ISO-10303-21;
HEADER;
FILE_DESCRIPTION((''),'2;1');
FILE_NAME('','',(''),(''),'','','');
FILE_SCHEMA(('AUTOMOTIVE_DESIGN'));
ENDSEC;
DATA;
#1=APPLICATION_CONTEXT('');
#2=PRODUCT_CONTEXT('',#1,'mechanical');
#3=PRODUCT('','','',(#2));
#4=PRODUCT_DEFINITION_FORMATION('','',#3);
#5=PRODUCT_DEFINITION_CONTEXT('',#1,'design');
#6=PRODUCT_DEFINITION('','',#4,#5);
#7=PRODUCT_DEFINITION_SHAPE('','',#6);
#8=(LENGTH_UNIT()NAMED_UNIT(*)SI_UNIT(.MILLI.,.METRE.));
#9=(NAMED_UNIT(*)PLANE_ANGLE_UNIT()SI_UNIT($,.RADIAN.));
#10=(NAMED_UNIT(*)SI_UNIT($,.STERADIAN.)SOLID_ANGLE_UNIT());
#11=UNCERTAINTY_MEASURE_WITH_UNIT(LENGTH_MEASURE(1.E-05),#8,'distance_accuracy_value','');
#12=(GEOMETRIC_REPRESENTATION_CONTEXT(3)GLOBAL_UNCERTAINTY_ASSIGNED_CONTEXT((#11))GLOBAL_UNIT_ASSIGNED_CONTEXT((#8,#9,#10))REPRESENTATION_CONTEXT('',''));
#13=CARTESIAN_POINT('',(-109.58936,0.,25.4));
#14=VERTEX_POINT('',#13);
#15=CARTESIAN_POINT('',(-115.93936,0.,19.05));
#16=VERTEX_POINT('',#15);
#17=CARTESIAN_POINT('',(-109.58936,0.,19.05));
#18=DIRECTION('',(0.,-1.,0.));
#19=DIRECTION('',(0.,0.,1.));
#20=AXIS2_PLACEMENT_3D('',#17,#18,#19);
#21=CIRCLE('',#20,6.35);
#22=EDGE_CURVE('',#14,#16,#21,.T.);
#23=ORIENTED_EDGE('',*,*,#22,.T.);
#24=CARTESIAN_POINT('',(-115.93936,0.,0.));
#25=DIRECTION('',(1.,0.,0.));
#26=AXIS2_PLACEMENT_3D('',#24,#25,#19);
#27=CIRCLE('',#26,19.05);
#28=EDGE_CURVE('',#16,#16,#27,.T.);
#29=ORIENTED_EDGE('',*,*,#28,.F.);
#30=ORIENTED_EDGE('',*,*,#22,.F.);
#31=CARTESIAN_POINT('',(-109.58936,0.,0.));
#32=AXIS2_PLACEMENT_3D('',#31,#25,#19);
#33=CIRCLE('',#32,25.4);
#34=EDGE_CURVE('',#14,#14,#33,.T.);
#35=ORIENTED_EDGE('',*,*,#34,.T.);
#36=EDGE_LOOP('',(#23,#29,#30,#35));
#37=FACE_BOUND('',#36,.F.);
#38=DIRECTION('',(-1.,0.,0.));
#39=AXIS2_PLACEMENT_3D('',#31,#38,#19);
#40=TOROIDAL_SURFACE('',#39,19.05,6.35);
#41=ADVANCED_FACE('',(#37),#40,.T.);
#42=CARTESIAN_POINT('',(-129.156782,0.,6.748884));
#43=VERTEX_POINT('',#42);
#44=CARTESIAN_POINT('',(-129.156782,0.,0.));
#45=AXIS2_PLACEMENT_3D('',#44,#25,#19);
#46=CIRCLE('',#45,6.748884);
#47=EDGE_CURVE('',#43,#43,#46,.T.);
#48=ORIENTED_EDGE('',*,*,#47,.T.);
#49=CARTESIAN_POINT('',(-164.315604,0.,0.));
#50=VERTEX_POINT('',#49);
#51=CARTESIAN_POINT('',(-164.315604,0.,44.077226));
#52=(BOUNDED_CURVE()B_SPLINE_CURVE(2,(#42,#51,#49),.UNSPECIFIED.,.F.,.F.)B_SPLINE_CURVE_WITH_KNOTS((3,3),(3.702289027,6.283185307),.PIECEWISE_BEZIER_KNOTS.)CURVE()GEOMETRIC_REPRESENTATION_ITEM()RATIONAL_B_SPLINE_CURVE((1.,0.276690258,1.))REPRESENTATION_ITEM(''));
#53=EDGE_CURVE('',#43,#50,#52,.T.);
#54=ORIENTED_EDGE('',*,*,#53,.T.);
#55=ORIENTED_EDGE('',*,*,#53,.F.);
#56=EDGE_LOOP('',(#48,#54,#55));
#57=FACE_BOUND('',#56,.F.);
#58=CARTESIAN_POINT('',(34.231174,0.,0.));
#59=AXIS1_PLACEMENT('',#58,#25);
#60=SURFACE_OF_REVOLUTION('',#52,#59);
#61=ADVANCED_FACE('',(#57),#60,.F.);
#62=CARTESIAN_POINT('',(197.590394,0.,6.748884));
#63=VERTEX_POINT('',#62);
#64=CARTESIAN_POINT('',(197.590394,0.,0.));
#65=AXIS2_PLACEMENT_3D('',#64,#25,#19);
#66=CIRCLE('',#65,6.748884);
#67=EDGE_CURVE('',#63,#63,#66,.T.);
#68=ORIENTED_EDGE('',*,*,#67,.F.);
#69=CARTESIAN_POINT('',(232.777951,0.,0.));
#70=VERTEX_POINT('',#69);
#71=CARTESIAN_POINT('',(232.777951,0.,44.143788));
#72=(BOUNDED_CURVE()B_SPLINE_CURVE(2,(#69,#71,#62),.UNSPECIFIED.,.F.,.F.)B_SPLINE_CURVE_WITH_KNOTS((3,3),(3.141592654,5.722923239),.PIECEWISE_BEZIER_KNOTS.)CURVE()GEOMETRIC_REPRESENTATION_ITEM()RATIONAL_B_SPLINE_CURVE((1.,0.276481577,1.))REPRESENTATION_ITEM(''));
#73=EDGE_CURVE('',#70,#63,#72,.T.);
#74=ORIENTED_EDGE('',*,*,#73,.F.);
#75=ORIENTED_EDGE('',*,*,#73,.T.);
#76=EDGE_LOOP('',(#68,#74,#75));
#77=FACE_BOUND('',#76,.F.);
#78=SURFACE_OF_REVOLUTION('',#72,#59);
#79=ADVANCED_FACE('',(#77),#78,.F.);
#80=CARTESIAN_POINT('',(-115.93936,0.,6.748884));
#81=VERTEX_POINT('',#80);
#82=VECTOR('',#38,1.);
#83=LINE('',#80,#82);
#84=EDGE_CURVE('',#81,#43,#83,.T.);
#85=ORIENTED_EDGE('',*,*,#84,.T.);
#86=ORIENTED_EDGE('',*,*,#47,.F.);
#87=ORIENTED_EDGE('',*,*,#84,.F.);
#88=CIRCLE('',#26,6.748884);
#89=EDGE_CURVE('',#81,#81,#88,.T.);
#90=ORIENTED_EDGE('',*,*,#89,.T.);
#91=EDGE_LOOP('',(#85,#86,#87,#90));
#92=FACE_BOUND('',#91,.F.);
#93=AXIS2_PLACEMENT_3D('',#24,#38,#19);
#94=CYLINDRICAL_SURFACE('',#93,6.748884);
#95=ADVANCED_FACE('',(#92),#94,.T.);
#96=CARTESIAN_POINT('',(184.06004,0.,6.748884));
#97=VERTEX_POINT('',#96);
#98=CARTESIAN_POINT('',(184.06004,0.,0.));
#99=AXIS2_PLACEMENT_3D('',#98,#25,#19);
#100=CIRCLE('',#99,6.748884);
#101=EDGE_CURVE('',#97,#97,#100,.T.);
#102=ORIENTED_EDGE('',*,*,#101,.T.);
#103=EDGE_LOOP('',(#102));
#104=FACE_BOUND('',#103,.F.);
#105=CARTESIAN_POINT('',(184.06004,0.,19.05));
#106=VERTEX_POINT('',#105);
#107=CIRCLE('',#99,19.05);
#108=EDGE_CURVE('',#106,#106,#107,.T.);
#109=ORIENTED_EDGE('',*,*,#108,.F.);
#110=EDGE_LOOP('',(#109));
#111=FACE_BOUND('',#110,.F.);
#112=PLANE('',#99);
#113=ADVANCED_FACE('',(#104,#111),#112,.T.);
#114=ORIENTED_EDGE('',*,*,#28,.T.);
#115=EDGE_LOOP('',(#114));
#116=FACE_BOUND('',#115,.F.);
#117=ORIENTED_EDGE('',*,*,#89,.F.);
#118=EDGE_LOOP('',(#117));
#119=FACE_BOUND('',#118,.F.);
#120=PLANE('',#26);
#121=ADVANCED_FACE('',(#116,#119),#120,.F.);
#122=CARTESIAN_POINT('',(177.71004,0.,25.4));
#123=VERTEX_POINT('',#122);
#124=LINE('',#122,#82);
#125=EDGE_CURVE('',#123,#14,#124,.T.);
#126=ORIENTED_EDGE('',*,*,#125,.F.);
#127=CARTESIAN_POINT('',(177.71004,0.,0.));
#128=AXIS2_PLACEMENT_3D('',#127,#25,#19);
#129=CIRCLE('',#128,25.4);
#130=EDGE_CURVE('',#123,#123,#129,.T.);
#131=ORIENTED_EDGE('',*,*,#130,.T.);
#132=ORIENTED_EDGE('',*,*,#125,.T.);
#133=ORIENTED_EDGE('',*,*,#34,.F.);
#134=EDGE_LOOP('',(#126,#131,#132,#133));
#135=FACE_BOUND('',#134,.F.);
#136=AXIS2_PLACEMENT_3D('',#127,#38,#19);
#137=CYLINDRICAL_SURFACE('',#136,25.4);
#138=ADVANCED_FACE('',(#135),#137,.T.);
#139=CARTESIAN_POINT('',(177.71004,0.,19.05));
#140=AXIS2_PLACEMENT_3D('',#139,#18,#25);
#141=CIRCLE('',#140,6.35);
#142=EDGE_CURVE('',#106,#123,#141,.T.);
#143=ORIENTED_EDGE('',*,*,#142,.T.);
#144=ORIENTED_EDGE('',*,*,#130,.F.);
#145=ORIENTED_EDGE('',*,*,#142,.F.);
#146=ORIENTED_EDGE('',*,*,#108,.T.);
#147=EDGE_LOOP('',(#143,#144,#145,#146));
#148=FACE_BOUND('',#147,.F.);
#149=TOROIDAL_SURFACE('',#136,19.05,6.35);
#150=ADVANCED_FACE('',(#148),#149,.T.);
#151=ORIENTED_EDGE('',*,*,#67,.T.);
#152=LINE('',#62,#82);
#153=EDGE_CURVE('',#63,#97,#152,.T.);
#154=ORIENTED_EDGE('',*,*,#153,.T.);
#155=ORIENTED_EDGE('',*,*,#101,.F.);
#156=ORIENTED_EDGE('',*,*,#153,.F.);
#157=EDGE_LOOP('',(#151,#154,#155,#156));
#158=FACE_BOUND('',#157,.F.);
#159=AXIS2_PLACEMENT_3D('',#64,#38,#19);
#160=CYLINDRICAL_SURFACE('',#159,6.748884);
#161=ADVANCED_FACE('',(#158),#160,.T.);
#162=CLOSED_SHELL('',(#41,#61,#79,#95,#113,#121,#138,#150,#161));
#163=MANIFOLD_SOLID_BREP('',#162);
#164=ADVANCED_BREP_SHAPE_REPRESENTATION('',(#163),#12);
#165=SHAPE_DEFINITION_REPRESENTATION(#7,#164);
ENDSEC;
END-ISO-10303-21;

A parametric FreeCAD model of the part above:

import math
import FreeCAD as App
import Part
import Sketcher
Q = App.Units.Quantity

doc = App.newDocument("Part")
body = doc.addObject("PartDesign::Body", "Body")

# Sketch on XZ plane
sketch1 = doc.addObject("Sketcher::SketchObject", "Sketch")
body.addObject(sketch1)
sketch1.AttachmentSupport = (doc.XZ_Plane, [""])
sketch1.MapMode = "FlatFace"
sketch1.addGeometry([
    Part.LineSegment(App.Vector(177.71004, 25.4, 0), App.Vector(-109.58936, 25.4, 0)),  # 0
    Part.ArcOfCircle(Part.Circle(App.Vector(-109.58936, 19.05, 0), App.Vector(0, 0, 1), 6.35), math.radians(90), math.radians(180)),  # 1
    Part.LineSegment(App.Vector(-115.93936, 19.05, 0), App.Vector(-115.93936, 6.748884, 0)),  # 2
    Part.LineSegment(App.Vector(-115.93936, 6.748884, 0), App.Vector(-129.156782, 6.748884, 0)),  # 3
    Part.BSplineCurve([App.Vector(-129.156782, 6.748884, 0), App.Vector(-164.315604, 44.077226, 0), App.Vector(-164.315604, 0, 0)], [3, 3], [3.702289027, 6.283185307], False, 2, [1, 0.276690258, 1], False),  # 4
    Part.LineSegment(App.Vector(-164.315604, 0, 0), App.Vector(232.777951, 0, 0)),  # 5
    Part.BSplineCurve([App.Vector(232.777951, 0, 0), App.Vector(232.777951, 44.143788, 0), App.Vector(197.590394, 6.748884, 0)], [3, 3], [3.141592654, 5.722923239], False, 2, [1, 0.276481577, 1], False),  # 6
    Part.LineSegment(App.Vector(197.590394, 6.748884, 0), App.Vector(184.06004, 6.748884, 0)),  # 7
    Part.LineSegment(App.Vector(184.06004, 6.748884, 0), App.Vector(184.06004, 19.05, 0)),  # 8
    Part.ArcOfCircle(Part.Circle(App.Vector(177.71004, 19.05, 0), App.Vector(0, 0, 1), 6.35), math.radians(0), math.radians(90)),  # 9
], False)
sketch1.addConstraint([
    Sketcher.Constraint("Block", 4),
    Sketcher.Constraint("Block", 6),
    Sketcher.Constraint("Tangent", 0, 2, 1, 1),
    Sketcher.Constraint("Tangent", 1, 2, 2, 1),
    Sketcher.Constraint("Coincident", 2, 2, 3, 1),
    Sketcher.Constraint("Coincident", 3, 2, 4, 1),
    Sketcher.Constraint("Coincident", 4, 2, 5, 1),
    Sketcher.Constraint("Coincident", 5, 2, 6, 1),
    Sketcher.Constraint("Coincident", 6, 2, 7, 1),
    Sketcher.Constraint("Coincident", 7, 2, 8, 1),
    Sketcher.Constraint("Tangent", 8, 2, 9, 1),
    Sketcher.Constraint("Tangent", 9, 2, 0, 1),
    Sketcher.Constraint("Horizontal", 0),
    Sketcher.Constraint("Vertical", 2),
    Sketcher.Constraint("Horizontal", 3),
    Sketcher.Constraint("Horizontal", 7),
    Sketcher.Constraint("Vertical", 8),
    Sketcher.Constraint("Equal", 1, 9),
    Sketcher.Constraint("Radius", 1, Q("0.25 in")),
    Sketcher.Constraint("DistanceY", -1, 1, 0, 2, Q("1 in")),
    Sketcher.Constraint("DistanceX", 0, 2, 0, 1, Q("11.311 in")),
    Sketcher.Constraint("DistanceX", 3, 2, 3, 1, Q("13.217423 mm")),
])
revolution = doc.addObject("PartDesign::Revolution", "Revolution")
body.addObject(revolution)
revolution.Profile = sketch1
revolution.ReferenceAxis = (sketch1, ["H_Axis"])
revolution.Angle = 360

doc.recompute()
